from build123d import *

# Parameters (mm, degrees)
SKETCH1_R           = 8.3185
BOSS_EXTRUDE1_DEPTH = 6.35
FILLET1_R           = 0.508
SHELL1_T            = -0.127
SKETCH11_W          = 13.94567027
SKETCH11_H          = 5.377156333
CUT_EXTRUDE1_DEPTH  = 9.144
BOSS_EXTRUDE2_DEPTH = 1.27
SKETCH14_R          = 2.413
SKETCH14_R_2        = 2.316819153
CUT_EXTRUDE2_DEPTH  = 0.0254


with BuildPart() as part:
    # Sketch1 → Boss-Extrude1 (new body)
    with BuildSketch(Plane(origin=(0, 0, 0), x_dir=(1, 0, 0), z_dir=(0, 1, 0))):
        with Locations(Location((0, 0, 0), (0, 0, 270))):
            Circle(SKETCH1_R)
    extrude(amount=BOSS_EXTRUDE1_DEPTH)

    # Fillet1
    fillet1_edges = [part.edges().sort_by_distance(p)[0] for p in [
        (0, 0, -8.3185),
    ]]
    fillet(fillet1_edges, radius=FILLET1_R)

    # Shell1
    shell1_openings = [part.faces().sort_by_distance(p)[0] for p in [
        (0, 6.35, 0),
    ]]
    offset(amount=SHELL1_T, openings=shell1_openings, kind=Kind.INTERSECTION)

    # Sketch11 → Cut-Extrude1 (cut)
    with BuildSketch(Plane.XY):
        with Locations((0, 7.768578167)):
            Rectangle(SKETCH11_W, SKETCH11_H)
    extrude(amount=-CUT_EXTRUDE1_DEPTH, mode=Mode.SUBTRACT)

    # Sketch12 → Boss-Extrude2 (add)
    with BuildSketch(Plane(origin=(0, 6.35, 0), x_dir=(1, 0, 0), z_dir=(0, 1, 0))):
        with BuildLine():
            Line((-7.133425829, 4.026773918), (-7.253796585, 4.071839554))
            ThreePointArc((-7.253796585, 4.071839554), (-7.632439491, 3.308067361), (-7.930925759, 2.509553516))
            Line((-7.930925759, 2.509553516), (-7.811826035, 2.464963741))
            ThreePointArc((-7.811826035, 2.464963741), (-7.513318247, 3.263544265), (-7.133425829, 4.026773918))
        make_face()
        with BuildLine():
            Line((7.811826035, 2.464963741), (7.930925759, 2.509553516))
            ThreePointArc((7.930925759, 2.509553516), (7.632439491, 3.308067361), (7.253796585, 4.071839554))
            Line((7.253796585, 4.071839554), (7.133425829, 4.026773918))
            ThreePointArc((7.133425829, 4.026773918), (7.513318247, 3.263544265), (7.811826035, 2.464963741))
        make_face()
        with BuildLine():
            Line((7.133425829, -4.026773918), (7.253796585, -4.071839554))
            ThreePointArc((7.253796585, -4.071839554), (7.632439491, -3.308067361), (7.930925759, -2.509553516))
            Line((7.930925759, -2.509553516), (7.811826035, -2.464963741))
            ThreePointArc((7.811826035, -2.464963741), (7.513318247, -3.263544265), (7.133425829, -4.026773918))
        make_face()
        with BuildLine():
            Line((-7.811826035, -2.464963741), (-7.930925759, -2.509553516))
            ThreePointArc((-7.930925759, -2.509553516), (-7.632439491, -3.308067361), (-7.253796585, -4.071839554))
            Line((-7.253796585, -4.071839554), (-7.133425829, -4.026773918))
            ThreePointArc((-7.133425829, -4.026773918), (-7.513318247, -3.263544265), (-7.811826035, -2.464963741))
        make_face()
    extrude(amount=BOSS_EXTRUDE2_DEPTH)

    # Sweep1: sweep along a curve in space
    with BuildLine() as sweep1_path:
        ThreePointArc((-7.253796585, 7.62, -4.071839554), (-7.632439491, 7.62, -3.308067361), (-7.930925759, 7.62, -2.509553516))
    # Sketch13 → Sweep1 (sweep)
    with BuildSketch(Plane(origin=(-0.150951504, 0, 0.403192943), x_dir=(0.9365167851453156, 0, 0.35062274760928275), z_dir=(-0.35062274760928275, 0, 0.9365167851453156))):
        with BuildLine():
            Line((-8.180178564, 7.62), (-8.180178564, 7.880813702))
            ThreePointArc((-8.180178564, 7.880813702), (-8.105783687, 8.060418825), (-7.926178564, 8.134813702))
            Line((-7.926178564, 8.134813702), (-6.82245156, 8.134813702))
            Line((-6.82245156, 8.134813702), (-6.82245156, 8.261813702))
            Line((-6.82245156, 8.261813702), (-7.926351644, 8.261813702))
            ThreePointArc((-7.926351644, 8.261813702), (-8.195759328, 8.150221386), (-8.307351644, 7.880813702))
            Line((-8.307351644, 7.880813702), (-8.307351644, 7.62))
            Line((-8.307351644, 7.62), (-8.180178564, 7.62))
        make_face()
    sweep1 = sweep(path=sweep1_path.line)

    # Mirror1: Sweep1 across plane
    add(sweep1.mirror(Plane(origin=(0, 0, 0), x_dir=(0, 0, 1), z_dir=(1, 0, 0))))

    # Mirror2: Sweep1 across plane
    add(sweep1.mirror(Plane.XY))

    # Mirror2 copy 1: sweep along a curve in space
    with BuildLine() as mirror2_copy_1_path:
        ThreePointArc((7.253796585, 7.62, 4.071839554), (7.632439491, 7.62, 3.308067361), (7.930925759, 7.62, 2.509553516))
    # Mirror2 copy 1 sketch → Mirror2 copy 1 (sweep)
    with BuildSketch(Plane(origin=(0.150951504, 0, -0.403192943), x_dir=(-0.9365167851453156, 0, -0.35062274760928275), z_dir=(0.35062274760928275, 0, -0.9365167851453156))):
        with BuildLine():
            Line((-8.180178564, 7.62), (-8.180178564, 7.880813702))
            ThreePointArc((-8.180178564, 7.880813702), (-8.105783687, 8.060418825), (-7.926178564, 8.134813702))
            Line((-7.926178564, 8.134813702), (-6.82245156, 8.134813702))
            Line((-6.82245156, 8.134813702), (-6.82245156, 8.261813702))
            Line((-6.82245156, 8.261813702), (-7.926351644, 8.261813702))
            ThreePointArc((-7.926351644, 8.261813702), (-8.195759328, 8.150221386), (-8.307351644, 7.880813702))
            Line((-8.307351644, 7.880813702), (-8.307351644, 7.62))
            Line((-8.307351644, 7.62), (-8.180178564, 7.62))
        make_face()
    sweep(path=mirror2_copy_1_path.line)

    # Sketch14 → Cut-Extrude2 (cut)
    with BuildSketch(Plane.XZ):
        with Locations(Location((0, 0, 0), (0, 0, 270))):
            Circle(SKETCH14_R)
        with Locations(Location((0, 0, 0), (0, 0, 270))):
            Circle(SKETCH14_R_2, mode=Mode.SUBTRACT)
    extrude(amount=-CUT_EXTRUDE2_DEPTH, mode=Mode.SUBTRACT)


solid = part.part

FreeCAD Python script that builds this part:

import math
import FreeCAD as App
import Part
import Sketcher
Q = App.Units.Quantity


def edges_at(feature, points):
    """Names of the edges that pass closest to the given points."""
    edges = feature.Shape.Edges
    near = lambda p: min(range(len(edges)), key=lambda i: edges[i].distToShape(Part.Vertex(*p))[0])
    return sorted({f"Edge{near(p) + 1}" for p in points})


def faces_at(feature, points):
    """Names of the faces that lie closest to the given points."""
    faces = feature.Shape.Faces
    near = lambda p: min(range(len(faces)), key=lambda i: faces[i].distToShape(Part.Vertex(*p))[0])
    return sorted({f"Face{near(p) + 1}" for p in points})


def add_polygon(sketch, points):
    """Adds a closed chain of lines whose ends are joined by coincident constraints."""
    first, n = sketch.GeometryCount, len(points)
    for a, b in zip(points, points[1:] + points[:1]):
        sketch.addGeometry(Part.LineSegment(App.Vector(*a, 0), App.Vector(*b, 0)), False)
    for i in range(n):
        sketch.addConstraint(Sketcher.Constraint("Coincident", first + i, 2, first + (i + 1) % n, 1))

doc = App.newDocument("Part")
params = doc.addObject("Spreadsheet::Sheet", "Params")
for row, (alias, value) in enumerate([
    ("sketch1_diameter", "0.655 in"),
    ("pad1_length", "0.25 in"),
    ("fillet_radius", "0.02 in"),
    ("thickness_wall", "0.005 in"),
    ("pocket1_length", "0.36 in"),
    ("pad2_length", "0.05 in"),
    ("sketch4_radius", "0.01 in"),
    ("sketch4_radius2", "0.015 in"),
    ("sketch6_radius", "0.01 in"),
    ("sketch6_radius2", "0.015 in"),
    ("sketch8_diameter", "0.19 in"),
    ("pocket2_length", "0.001 in"),
], start=1):
    params.set(f"A{row}", alias)
    params.set(f"B{row}", "=" + value)
    params.setAlias(f"B{row}", alias)

body = doc.addObject("PartDesign::Body", "Body")

# Sketch on XZ plane
sketch1 = body.newObject("Sketcher::SketchObject", "Sketch")
sketch1.AttachmentSupport = (doc.getObject("XZ_Plane"), [""])
sketch1.MapMode = "FlatFace"
sketch1.addGeometry(Part.Circle(App.Vector(0, 0, 0), App.Vector(0, 0, 1), 8.3185), False)
sketch1.addConstraint(Sketcher.Constraint("Coincident", 0, 3, -1, 1))
sketch1.addConstraint(Sketcher.Constraint("Diameter", 0, Q("0.655 in")))
sketch1.setExpression("Constraints[1]", "Params.sketch1_diameter")
pad1 = body.newObject("PartDesign::Pad", "Pad")
pad1.Profile = sketch1
pad1.setExpression("Length", "Params.pad1_length")
pad1.Reversed = True
doc.recompute()

fillet = body.newObject("PartDesign::Fillet", "Fillet")
fillet.Base = (pad1, edges_at(pad1, [(0, 0, -8.319)]))
fillet.setExpression("Radius", "Params.fillet_radius")
doc.recompute()

thickness = body.newObject("PartDesign::Thickness", "Thickness")
thickness.Base = (fillet, faces_at(fillet, [(0, 6.35, 0)]))
thickness.setExpression("Value", "Params.thickness_wall")
thickness.Reversed = True
thickness.Join = "Intersection"

# Sketch on XY plane
sketch2 = body.newObject("Sketcher::SketchObject", "Sketch001")
sketch2.AttachmentSupport = (doc.getObject("XY_Plane"), [""])
sketch2.MapMode = "FlatFace"
add_polygon(sketch2, [(-6.972835, 10.457156), (-6.972835, 5.08), (6.972835, 5.08), (6.972835, 10.457156)])  # lines 0-3
sketch2.addConstraint(Sketcher.Constraint("Vertical", 0))
sketch2.addConstraint(Sketcher.Constraint("Horizontal", 1))
sketch2.addConstraint(Sketcher.Constraint("Vertical", 2))
sketch2.addConstraint(Sketcher.Constraint("Horizontal", 3))
sketch2.addConstraint(Sketcher.Constraint("DistanceY", -1, 1, 0, 2, Q("0.2 in")))
sketch2.addConstraint(Sketcher.Constraint("DistanceX", 1, 1, 1, 2, 13.94567))
sketch2.addConstraint(Sketcher.Constraint("DistanceY", 0, 2, 0, 1, 5.377156))
sketch2.addConstraint(Sketcher.Constraint("DistanceX", 0, 2, -1, 1, 6.972835))
pocket1 = body.newObject("PartDesign::Pocket", "Pocket")
pocket1.Profile = sketch2
pocket1.setExpression("Length", "Params.pocket1_length")

# Sketch on XZ plane
sketch3 = body.newObject("Sketcher::SketchObject", "Sketch002")
sketch3.AttachmentSupport = (doc.getObject("XZ_Plane"), [""])
sketch3.MapMode = "FlatFace"
sketch3.AttachmentOffset = App.Placement(App.Vector(0, 0, -0.25 * 25.4), App.Rotation())
sketch3.addGeometry(Part.LineSegment(App.Vector(-7.133426, -4.026774, 0), App.Vector(-7.253797, -4.07184, 0)), False)
sketch3.addGeometry(Part.ArcOfCircle(Part.Circle(App.Vector(0, 0, 0), App.Vector(0, 0, 1), 8.3185), math.radians(-162.441259), math.radians(-150.6928)), False)
sketch3.addGeometry(Part.LineSegment(App.Vector(-7.930926, -2.509554, 0), App.Vector(-7.811826, -2.464964, 0)), False)
sketch3.addGeometry(Part.ArcOfCircle(Part.Circle(App.Vector(0, 0, 0), App.Vector(0, 0, 1), 8.1915), math.radians(-162.487296), math.radians(-150.555546)), False)
sketch3.addGeometry(Part.LineSegment(App.Vector(7.811826, -2.464964, 0), App.Vector(7.930926, -2.509554, 0)), False)
sketch3.addGeometry(Part.ArcOfCircle(Part.Circle(App.Vector(0, 0, 0), App.Vector(0, 0, 1), 8.3185), math.radians(-29.3072), math.radians(-17.558741)), False)
sketch3.addGeometry(Part.LineSegment(App.Vector(7.253797, -4.07184, 0), App.Vector(7.133426, -4.026774, 0)), False)
sketch3.addGeometry(Part.ArcOfCircle(Part.Circle(App.Vector(0, 0, 0), App.Vector(0, 0, 1), 8.1915), math.radians(-29.444454), math.radians(-17.512704)), False)
sketch3.addGeometry(Part.LineSegment(App.Vector(7.133426, 4.026774, 0), App.Vector(7.253797, 4.07184, 0)), False)
sketch3.addGeometry(Part.ArcOfCircle(Part.Circle(App.Vector(0, 0, 0), App.Vector(0, 0, 1), 8.3185), math.radians(17.558741), math.radians(29.3072)), False)
sketch3.addGeometry(Part.LineSegment(App.Vector(7.930926, 2.509554, 0), App.Vector(7.811826, 2.464964, 0)), False)
sketch3.addGeometry(Part.ArcOfCircle(Part.Circle(App.Vector(0, 0, 0), App.Vector(0, 0, 1), 8.1915), math.radians(17.512704), math.radians(29.444454)), False)
sketch3.addGeometry(Part.LineSegment(App.Vector(-7.811826, 2.464964, 0), App.Vector(-7.930926, 2.509554, 0)), False)
sketch3.addGeometry(Part.ArcOfCircle(Part.Circle(App.Vector(0, 0, 0), App.Vector(0, 0, 1), 8.3185), math.radians(150.6928), math.radians(162.441259)), False)
sketch3.addGeometry(Part.LineSegment(App.Vector(-7.253797, 4.07184, 0), App.Vector(-7.133426, 4.026774, 0)), False)
sketch3.addGeometry(Part.ArcOfCircle(Part.Circle(App.Vector(0, 0, 0), App.Vector(0, 0, 1), 8.1915), math.radians(150.555546), math.radians(162.487296)), False)
sketch3.addConstraint(Sketcher.Constraint("Coincident", 0, 2, 1, 2))
sketch3.addConstraint(Sketcher.Constraint("Coincident", 1, 1, 2, 1))
sketch3.addConstraint(Sketcher.Constraint("Coincident", 2, 2, 3, 1))
sketch3.addConstraint(Sketcher.Constraint("Coincident", 3, 2, 0, 1))
sketch3.addConstraint(Sketcher.Constraint("Coincident", 4, 2, 5, 2))
sketch3.addConstraint(Sketcher.Constraint("Coincident", 5, 1, 6, 1))
sketch3.addConstraint(Sketcher.Constraint("Coincident", 6, 2, 7, 1))
sketch3.addConstraint(Sketcher.Constraint("Coincident", 7, 2, 4, 1))
sketch3.addConstraint(Sketcher.Constraint("Coincident", 8, 2, 9, 2))
sketch3.addConstraint(Sketcher.Constraint("Coincident", 9, 1, 10, 1))
sketch3.addConstraint(Sketcher.Constraint("Coincident", 10, 2, 11, 1))
sketch3.addConstraint(Sketcher.Constraint("Coincident", 11, 2, 8, 1))
sketch3.addConstraint(Sketcher.Constraint("Coincident", 12, 2, 13, 2))
sketch3.addConstraint(Sketcher.Constraint("Coincident", 13, 1, 14, 1))
sketch3.addConstraint(Sketcher.Constraint("Coincident", 14, 2, 15, 1))
sketch3.addConstraint(Sketcher.Constraint("Coincident", 15, 2, 12, 1))
sketch3.addConstraint(Sketcher.Constraint("Coincident", 1, 3, -1, 1))
sketch3.addConstraint(Sketcher.Constraint("Coincident", 3, 3, -1, 1))
sketch3.addConstraint(Sketcher.Constraint("Coincident", 5, 3, -1, 1))
sketch3.addConstraint(Sketcher.Constraint("Coincident", 7, 3, -1, 1))
sketch3.addConstraint(Sketcher.Constraint("Coincident", 9, 3, -1, 1))
sketch3.addConstraint(Sketcher.Constraint("Coincident", 11, 3, -1, 1))
sketch3.addConstraint(Sketcher.Constraint("Coincident", 13, 3, -1, 1))
sketch3.addConstraint(Sketcher.Constraint("Coincident", 15, 3, -1, 1))
sketch3.addConstraint(Sketcher.Constraint("Equal", 1, 5))
sketch3.addConstraint(Sketcher.Constraint("Equal", 3, 7))
sketch3.addConstraint(Sketcher.Constraint("Equal", 5, 9))
sketch3.addConstraint(Sketcher.Constraint("Equal", 7, 11))
sketch3.addConstraint(Sketcher.Constraint("Equal", 9, 13))
sketch3.addConstraint(Sketcher.Constraint("Equal", 11, 15))
sketch3.addConstraint(Sketcher.Constraint("Parallel", 0, 2))
sketch3.addConstraint(Sketcher.Constraint("Parallel", 4, 6))
sketch3.addConstraint(Sketcher.Constraint("Parallel", 2, 8))
sketch3.addConstraint(Sketcher.Constraint("Parallel", 8, 10))
sketch3.addConstraint(Sketcher.Constraint("Parallel", 6, 12))
sketch3.addConstraint(Sketcher.Constraint("Parallel", 12, 14))
sketch3.addConstraint(Sketcher.Constraint("Horizontal", 1, 1, 4, 2))
sketch3.addConstraint(Sketcher.Constraint("Horizontal", 0, 2, 5, 1))
sketch3.addConstraint(Sketcher.Constraint("Horizontal", 3, 2, 6, 2))
sketch3.addConstraint(Sketcher.Constraint("Horizontal", 9, 1, 12, 2))
sketch3.addConstraint(Sketcher.Constraint("Horizontal", 8, 2, 13, 1))
sketch3.addConstraint(Sketcher.Constraint("Vertical", 5, 1, 8, 2))
sketch3.addConstraint(Sketcher.Constraint("Vertical", 4, 2, 9, 1))
sketch3.addConstraint(Sketcher.Constraint("Radius", 1, Q("0.3275 in")))
sketch3.addConstraint(Sketcher.Constraint("Radius", 3, Q("0.3225 in")))
sketch3.addConstraint(Sketcher.Constraint("DistanceX", 1, 1, 2, 2, 0.1191))
sketch3.addConstraint(Sketcher.Constraint("DistanceX", 2, 2, 3, 2, 0.6784))
sketch3.addConstraint(Sketcher.Constraint("DistanceY", 0, 2, -1, 1, 4.07184))
pad2 = body.newObject("PartDesign::Pad", "Pad001")
pad2.Profile = sketch3
pad2.setExpression("Length", "Params.pad2_length")
pad2.Reversed = True

# Sketch on an angled plane
sketch4 = body.newObject("Sketcher::SketchObject", "Sketch003")
sketch4.Placement = App.Placement(App.Vector(-0.150952, 0, 0.403193), App.Rotation(App.Vector(0.936516785, 0, 0.350622748), App.Vector(0, 1, 0), App.Vector(-0.350622748, 0, 0.936516785), "ZXY"))
sketch4.addGeometry(Part.LineSegment(App.Vector(-8.180179, 7.62, 0), App.Vector(-8.180179, 7.880814, 0)), False)
sketch4.addGeometry(Part.ArcOfCircle(Part.Circle(App.Vector(-7.926179, 7.880814, 0), App.Vector(0, 0, 1), 0.254), math.radians(90), math.radians(180)), False)
sketch4.addGeometry(Part.LineSegment(App.Vector(-7.926179, 8.134814, 0), App.Vector(-6.822452, 8.134814, 0)), False)
sketch4.addGeometry(Part.LineSegment(App.Vector(-6.822452, 8.134814, 0), App.Vector(-6.822452, 8.261814, 0)), False)
sketch4.addGeometry(Part.LineSegment(App.Vector(-6.822452, 8.261814, 0), App.Vector(-7.926352, 8.261814, 0)), False)
sketch4.addGeometry(Part.ArcOfCircle(Part.Circle(App.Vector(-7.926352, 7.880814, 0), App.Vector(0, 0, 1), 0.381), math.radians(90), math.radians(180)), False)
sketch4.addGeometry(Part.LineSegment(App.Vector(-8.307352, 7.880814, 0), App.Vector(-8.307352, 7.62, 0)), False)
sketch4.addGeometry(Part.LineSegment(App.Vector(-8.307352, 7.62, 0), App.Vector(-8.180179, 7.62, 0)), False)
sketch4.addConstraint(Sketcher.Constraint("Tangent", 0, 2, 1, 2))
sketch4.addConstraint(Sketcher.Constraint("Tangent", 1, 1, 2, 1))
sketch4.addConstraint(Sketcher.Constraint("Coincident", 2, 2, 3, 1))
sketch4.addConstraint(Sketcher.Constraint("Coincident", 3, 2, 4, 1))
sketch4.addConstraint(Sketcher.Constraint("Tangent", 4, 2, 5, 1))
sketch4.addConstraint(Sketcher.Constraint("Tangent", 5, 2, 6, 1))
sketch4.addConstraint(Sketcher.Constraint("Coincident", 6, 2, 7, 1))
sketch4.addConstraint(Sketcher.Constraint("Coincident", 7, 2, 0, 1))
sketch4.addConstraint(Sketcher.Constraint("Vertical", 0))
sketch4.addConstraint(Sketcher.Constraint("Horizontal", 2))
sketch4.addConstraint(Sketcher.Constraint("Vertical", 3))
sketch4.addConstraint(Sketcher.Constraint("Horizontal", 4))
sketch4.addConstraint(Sketcher.Constraint("Vertical", 6))
sketch4.addConstraint(Sketcher.Constraint("Horizontal", 7))
sketch4.addConstraint(Sketcher.Constraint("Horizontal", 1, 3, 5, 3))
sketch4.addConstraint(Sketcher.Constraint("Radius", 1, Q("0.01 in")))
sketch4.addConstraint(Sketcher.Constraint("Radius", 5, Q("0.015 in")))
sketch4.addConstraint(Sketcher.Constraint("DistanceY", -1, 1, 6, 2, Q("0.3 in")))
sketch4.addConstraint(Sketcher.Constraint("DistanceX", 4, 2, 4, 1, 1.1039))
sketch4.addConstraint(Sketcher.Constraint("DistanceX", 2, 1, 2, 2, 1.103727))
sketch4.addConstraint(Sketcher.Constraint("DistanceY", 0, 1, 0, 2, 0.260814))
sketch4.addConstraint(Sketcher.Constraint("DistanceX", 1, 3, -1, 1, 7.926179))
sketch4.setExpression("Constraints[15]", "Params.sketch4_radius")
sketch4.setExpression("Constraints[16]", "Params.sketch4_radius2")

# Sketch on XZ plane
sketch5 = body.newObject("Sketcher::SketchObject", "Sketch004")
sketch5.AttachmentSupport = (doc.getObject("XZ_Plane"), [""])
sketch5.MapMode = "FlatFace"
sketch5.AttachmentOffset = App.Placement(App.Vector(0, 0, -0.3 * 25.4), App.Rotation())
sketch5.addGeometry(Part.ArcOfCircle(Part.Circle(App.Vector(0, 0, 0), App.Vector(0, 0, 1), 8.3185), math.radians(-162.441259), math.radians(-150.6928)), False)
sketch5.addConstraint(Sketcher.Constraint("Coincident", 0, 3, -1, 1))
sketch5.addConstraint(Sketcher.Constraint("Radius", 0, Q("0.3275 in")))
sketch5.addConstraint(Sketcher.Constraint("DistanceY", 0, 2, -1, 1, 4.07184))
sketch5.addConstraint(Sketcher.Constraint("DistanceX", 0, 1, 0, 2, 0.677129))
doc.recompute()

additivepipe = body.newObject("PartDesign::AdditivePipe", "AdditivePipe")
additivepipe.Profile = sketch4
additivepipe.Spine = (sketch5, ["Edge1"])
doc.recompute()

mirrored = body.newObject("PartDesign::Mirrored", "Mirrored")
mirrored.Originals = [additivepipe]
mirrored.MirrorPlane = (doc.getObject("YZ_Plane"), [""])
body.Tip = mirrored
doc.recompute()

mirrored2 = body.newObject("PartDesign::Mirrored", "Mirrored001")
mirrored2.Originals = [additivepipe]
mirrored2.MirrorPlane = (doc.getObject("XY_Plane"), [""])
body.Tip = mirrored2

# Sketch on an angled plane
sketch6 = body.newObject("Sketcher::SketchObject", "Sketch005")
sketch6.Placement = App.Placement(App.Vector(0.150952, 0, -0.403193), App.Rotation(App.Vector(-0.936516785, 0, -0.350622748), App.Vector(0, 1, 0), App.Vector(0.350622748, 0, -0.936516785), "ZXY"))
sketch6.addGeometry(Part.LineSegment(App.Vector(-8.180179, 7.62, 0), App.Vector(-8.180179, 7.880814, 0)), False)
sketch6.addGeometry(Part.ArcOfCircle(Part.Circle(App.Vector(-7.926179, 7.880814, 0), App.Vector(0, 0, 1), 0.254), math.radians(90), math.radians(180)), False)
sketch6.addGeometry(Part.LineSegment(App.Vector(-7.926179, 8.134814, 0), App.Vector(-6.822452, 8.134814, 0)), False)
sketch6.addGeometry(Part.LineSegment(App.Vector(-6.822452, 8.134814, 0), App.Vector(-6.822452, 8.261814, 0)), False)
sketch6.addGeometry(Part.LineSegment(App.Vector(-6.822452, 8.261814, 0), App.Vector(-7.926352, 8.261814, 0)), False)
sketch6.addGeometry(Part.ArcOfCircle(Part.Circle(App.Vector(-7.926352, 7.880814, 0), App.Vector(0, 0, 1), 0.381), math.radians(90), math.radians(180)), False)
sketch6.addGeometry(Part.LineSegment(App.Vector(-8.307352, 7.880814, 0), App.Vector(-8.307352, 7.62, 0)), False)
sketch6.addGeometry(Part.LineSegment(App.Vector(-8.307352, 7.62, 0), App.Vector(-8.180179, 7.62, 0)), False)
sketch6.addConstraint(Sketcher.Constraint("Tangent", 0, 2, 1, 2))
sketch6.addConstraint(Sketcher.Constraint("Tangent", 1, 1, 2, 1))
sketch6.addConstraint(Sketcher.Constraint("Coincident", 2, 2, 3, 1))
sketch6.addConstraint(Sketcher.Constraint("Coincident", 3, 2, 4, 1))
sketch6.addConstraint(Sketcher.Constraint("Tangent", 4, 2, 5, 1))
sketch6.addConstraint(Sketcher.Constraint("Tangent", 5, 2, 6, 1))
sketch6.addConstraint(Sketcher.Constraint("Coincident", 6, 2, 7, 1))
sketch6.addConstraint(Sketcher.Constraint("Coincident", 7, 2, 0, 1))
sketch6.addConstraint(Sketcher.Constraint("Vertical", 0))
sketch6.addConstraint(Sketcher.Constraint("Horizontal", 2))
sketch6.addConstraint(Sketcher.Constraint("Vertical", 3))
sketch6.addConstraint(Sketcher.Constraint("Horizontal", 4))
sketch6.addConstraint(Sketcher.Constraint("Vertical", 6))
sketch6.addConstraint(Sketcher.Constraint("Horizontal", 7))
sketch6.addConstraint(Sketcher.Constraint("Horizontal", 1, 3, 5, 3))
sketch6.addConstraint(Sketcher.Constraint("Radius", 1, Q("0.01 in")))
sketch6.addConstraint(Sketcher.Constraint("Radius", 5, Q("0.015 in")))
sketch6.addConstraint(Sketcher.Constraint("DistanceY", -1, 1, 6, 2, Q("0.3 in")))
sketch6.addConstraint(Sketcher.Constraint("DistanceX", 4, 2, 4, 1, 1.1039))
sketch6.addConstraint(Sketcher.Constraint("DistanceX", 2, 1, 2, 2, 1.103727))
sketch6.addConstraint(Sketcher.Constraint("DistanceY", 0, 1, 0, 2, 0.260814))
sketch6.addConstraint(Sketcher.Constraint("DistanceX", 1, 3, -1, 1, 7.926179))
sketch6.setExpression("Constraints[15]", "Params.sketch6_radius")
sketch6.setExpression("Constraints[16]", "Params.sketch6_radius2")

# Sketch on XZ plane
sketch7 = body.newObject("Sketcher::SketchObject", "Sketch006")
sketch7.AttachmentSupport = (doc.getObject("XZ_Plane"), [""])
sketch7.MapMode = "FlatFace"
sketch7.AttachmentOffset = App.Placement(App.Vector(0, 0, -0.3 * 25.4), App.Rotation())
sketch7.addGeometry(Part.ArcOfCircle(Part.Circle(App.Vector(0, 0, 0), App.Vector(0, 0, 1), 8.3185), math.radians(17.558741), math.radians(29.3072)), False)
sketch7.addConstraint(Sketcher.Constraint("Coincident", 0, 3, -1, 1))
sketch7.addConstraint(Sketcher.Constraint("Radius", 0, Q("0.3275 in")))
sketch7.addConstraint(Sketcher.Constraint("DistanceY", -1, 1, 0, 2, 4.07184))
sketch7.addConstraint(Sketcher.Constraint("DistanceX", 0, 2, 0, 1, 0.677129))
doc.recompute()

additivepipe2 = body.newObject("PartDesign::AdditivePipe", "AdditivePipe001")
additivepipe2.Profile = sketch6
additivepipe2.Spine = (sketch7, ["Edge1"])

# Sketch on XZ plane
sketch8 = body.newObject("Sketcher::SketchObject", "Sketch007")
sketch8.AttachmentSupport = (doc.getObject("XZ_Plane"), [""])
sketch8.MapMode = "FlatFace"
sketch8.addGeometry(Part.Circle(App.Vector(0, 0, 0), App.Vector(0, 0, 1), 2.413), False)
sketch8.addGeometry(Part.Circle(App.Vector(0, 0, 0), App.Vector(0, 0, 1), 2.316819), False)
sketch8.addConstraint(Sketcher.Constraint("Coincident", 0, 3, -1, 1))
sketch8.addConstraint(Sketcher.Constraint("Coincident", 1, 3, -1, 1))
sketch8.addConstraint(Sketcher.Constraint("Diameter", 0, Q("0.19 in")))
sketch8.addConstraint(Sketcher.Constraint("Diameter", 1, 4.633638))
sketch8.setExpression("Constraints[2]", "Params.sketch8_diameter")
pocket2 = body.newObject("PartDesign::Pocket", "Pocket001")
pocket2.Profile = sketch8
pocket2.setExpression("Length", "Params.pocket2_length")

doc.recompute()
